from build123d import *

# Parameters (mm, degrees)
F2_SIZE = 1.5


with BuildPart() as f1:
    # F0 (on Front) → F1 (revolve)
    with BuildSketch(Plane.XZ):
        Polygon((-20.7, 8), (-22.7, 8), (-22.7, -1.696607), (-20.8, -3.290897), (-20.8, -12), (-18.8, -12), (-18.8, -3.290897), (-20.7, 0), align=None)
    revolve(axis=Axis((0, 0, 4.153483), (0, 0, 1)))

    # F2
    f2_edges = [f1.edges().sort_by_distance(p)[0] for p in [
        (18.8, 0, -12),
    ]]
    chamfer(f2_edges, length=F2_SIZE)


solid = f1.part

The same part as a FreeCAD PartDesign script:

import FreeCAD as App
import Part
import Sketcher

V = App.Vector
Q = App.Units.Quantity


def edges_at(feature, points):
    """Names of the edges that pass closest to the given points."""
    edges = feature.Shape.Edges
    near = lambda p: min(range(len(edges)), key=lambda i: edges[i].distToShape(Part.Vertex(*p))[0])
    return sorted({f"Edge{near(p) + 1}" for p in points})


def add_polygon(sketch, points):
    """Adds a closed chain of lines whose ends are joined by coincident constraints."""
    first, n = sketch.GeometryCount, len(points)
    for a, b in zip(points, points[1:] + points[:1]):
        sketch.addGeometry(Part.LineSegment(App.Vector(*a, 0), App.Vector(*b, 0)), False)
    for i in range(n):
        sketch.addConstraint(Sketcher.Constraint("Coincident", first + i, 2, first + (i + 1) % n, 1))

doc = App.newDocument("Part")
body = doc.addObject("PartDesign::Body", "Body")

# Sketch on XZ plane
sketch1 = doc.addObject("Sketcher::SketchObject", "Sketch")
body.addObject(sketch1)
sketch1.AttachmentSupport = (doc.XZ_Plane, [""])
sketch1.MapMode = "FlatFace"
add_polygon(sketch1, [(-20.7, 8), (-22.7, 8), (-22.7, -1.7), (-20.8, -3.3), (-20.8, -12), (-18.8, -12), (-18.8, -3.3), (-20.7, 0)])  # lines 0-7
sketch1.addConstraint([
    Sketcher.Constraint("Horizontal", 0),
    Sketcher.Constraint("Vertical", 1),
    Sketcher.Constraint("Vertical", 3),
    Sketcher.Constraint("Horizontal", 4),
    Sketcher.Constraint("Vertical", 5),
    Sketcher.Constraint("Vertical", 7),
    Sketcher.Constraint("PointOnObject", 6, 2, -1),
    Sketcher.Constraint("Horizontal", 2, 2, 5, 2),
    Sketcher.Constraint("Equal", 0, 4),
    Sketcher.Constraint("DistanceX", 0, 2, 0, 1, Q("2 mm")),
    Sketcher.Constraint("DistanceY", 7, 1, 7, 2, Q("8 mm")),
    Sketcher.Constraint("Angle", 2, Q("-40.000012 deg")),
    Sketcher.Constraint("Angle", 6, Q("119.999996 deg")),
    Sketcher.Constraint("DistanceY", 3, 2, -1, 1, Q("12 mm")),
    Sketcher.Constraint("Distance", 6, Q("3.8 mm")),
    Sketcher.Constraint("DistanceX", 0, 2, -1, 1, Q("22.7 mm")),
])
revolution = doc.addObject("PartDesign::Revolution", "Revolution")
body.addObject(revolution)
revolution.Profile = sketch1
revolution.ReferenceAxis = (sketch1, ["V_Axis"])
revolution.Angle = 360
doc.recompute()

chamfer = doc.addObject("PartDesign::Chamfer", "Chamfer")
body.addObject(chamfer)
chamfer.Base = (revolution, edges_at(revolution, [(18.8, 0, -12)]))
chamfer.Size = 1.5

doc.recompute()
